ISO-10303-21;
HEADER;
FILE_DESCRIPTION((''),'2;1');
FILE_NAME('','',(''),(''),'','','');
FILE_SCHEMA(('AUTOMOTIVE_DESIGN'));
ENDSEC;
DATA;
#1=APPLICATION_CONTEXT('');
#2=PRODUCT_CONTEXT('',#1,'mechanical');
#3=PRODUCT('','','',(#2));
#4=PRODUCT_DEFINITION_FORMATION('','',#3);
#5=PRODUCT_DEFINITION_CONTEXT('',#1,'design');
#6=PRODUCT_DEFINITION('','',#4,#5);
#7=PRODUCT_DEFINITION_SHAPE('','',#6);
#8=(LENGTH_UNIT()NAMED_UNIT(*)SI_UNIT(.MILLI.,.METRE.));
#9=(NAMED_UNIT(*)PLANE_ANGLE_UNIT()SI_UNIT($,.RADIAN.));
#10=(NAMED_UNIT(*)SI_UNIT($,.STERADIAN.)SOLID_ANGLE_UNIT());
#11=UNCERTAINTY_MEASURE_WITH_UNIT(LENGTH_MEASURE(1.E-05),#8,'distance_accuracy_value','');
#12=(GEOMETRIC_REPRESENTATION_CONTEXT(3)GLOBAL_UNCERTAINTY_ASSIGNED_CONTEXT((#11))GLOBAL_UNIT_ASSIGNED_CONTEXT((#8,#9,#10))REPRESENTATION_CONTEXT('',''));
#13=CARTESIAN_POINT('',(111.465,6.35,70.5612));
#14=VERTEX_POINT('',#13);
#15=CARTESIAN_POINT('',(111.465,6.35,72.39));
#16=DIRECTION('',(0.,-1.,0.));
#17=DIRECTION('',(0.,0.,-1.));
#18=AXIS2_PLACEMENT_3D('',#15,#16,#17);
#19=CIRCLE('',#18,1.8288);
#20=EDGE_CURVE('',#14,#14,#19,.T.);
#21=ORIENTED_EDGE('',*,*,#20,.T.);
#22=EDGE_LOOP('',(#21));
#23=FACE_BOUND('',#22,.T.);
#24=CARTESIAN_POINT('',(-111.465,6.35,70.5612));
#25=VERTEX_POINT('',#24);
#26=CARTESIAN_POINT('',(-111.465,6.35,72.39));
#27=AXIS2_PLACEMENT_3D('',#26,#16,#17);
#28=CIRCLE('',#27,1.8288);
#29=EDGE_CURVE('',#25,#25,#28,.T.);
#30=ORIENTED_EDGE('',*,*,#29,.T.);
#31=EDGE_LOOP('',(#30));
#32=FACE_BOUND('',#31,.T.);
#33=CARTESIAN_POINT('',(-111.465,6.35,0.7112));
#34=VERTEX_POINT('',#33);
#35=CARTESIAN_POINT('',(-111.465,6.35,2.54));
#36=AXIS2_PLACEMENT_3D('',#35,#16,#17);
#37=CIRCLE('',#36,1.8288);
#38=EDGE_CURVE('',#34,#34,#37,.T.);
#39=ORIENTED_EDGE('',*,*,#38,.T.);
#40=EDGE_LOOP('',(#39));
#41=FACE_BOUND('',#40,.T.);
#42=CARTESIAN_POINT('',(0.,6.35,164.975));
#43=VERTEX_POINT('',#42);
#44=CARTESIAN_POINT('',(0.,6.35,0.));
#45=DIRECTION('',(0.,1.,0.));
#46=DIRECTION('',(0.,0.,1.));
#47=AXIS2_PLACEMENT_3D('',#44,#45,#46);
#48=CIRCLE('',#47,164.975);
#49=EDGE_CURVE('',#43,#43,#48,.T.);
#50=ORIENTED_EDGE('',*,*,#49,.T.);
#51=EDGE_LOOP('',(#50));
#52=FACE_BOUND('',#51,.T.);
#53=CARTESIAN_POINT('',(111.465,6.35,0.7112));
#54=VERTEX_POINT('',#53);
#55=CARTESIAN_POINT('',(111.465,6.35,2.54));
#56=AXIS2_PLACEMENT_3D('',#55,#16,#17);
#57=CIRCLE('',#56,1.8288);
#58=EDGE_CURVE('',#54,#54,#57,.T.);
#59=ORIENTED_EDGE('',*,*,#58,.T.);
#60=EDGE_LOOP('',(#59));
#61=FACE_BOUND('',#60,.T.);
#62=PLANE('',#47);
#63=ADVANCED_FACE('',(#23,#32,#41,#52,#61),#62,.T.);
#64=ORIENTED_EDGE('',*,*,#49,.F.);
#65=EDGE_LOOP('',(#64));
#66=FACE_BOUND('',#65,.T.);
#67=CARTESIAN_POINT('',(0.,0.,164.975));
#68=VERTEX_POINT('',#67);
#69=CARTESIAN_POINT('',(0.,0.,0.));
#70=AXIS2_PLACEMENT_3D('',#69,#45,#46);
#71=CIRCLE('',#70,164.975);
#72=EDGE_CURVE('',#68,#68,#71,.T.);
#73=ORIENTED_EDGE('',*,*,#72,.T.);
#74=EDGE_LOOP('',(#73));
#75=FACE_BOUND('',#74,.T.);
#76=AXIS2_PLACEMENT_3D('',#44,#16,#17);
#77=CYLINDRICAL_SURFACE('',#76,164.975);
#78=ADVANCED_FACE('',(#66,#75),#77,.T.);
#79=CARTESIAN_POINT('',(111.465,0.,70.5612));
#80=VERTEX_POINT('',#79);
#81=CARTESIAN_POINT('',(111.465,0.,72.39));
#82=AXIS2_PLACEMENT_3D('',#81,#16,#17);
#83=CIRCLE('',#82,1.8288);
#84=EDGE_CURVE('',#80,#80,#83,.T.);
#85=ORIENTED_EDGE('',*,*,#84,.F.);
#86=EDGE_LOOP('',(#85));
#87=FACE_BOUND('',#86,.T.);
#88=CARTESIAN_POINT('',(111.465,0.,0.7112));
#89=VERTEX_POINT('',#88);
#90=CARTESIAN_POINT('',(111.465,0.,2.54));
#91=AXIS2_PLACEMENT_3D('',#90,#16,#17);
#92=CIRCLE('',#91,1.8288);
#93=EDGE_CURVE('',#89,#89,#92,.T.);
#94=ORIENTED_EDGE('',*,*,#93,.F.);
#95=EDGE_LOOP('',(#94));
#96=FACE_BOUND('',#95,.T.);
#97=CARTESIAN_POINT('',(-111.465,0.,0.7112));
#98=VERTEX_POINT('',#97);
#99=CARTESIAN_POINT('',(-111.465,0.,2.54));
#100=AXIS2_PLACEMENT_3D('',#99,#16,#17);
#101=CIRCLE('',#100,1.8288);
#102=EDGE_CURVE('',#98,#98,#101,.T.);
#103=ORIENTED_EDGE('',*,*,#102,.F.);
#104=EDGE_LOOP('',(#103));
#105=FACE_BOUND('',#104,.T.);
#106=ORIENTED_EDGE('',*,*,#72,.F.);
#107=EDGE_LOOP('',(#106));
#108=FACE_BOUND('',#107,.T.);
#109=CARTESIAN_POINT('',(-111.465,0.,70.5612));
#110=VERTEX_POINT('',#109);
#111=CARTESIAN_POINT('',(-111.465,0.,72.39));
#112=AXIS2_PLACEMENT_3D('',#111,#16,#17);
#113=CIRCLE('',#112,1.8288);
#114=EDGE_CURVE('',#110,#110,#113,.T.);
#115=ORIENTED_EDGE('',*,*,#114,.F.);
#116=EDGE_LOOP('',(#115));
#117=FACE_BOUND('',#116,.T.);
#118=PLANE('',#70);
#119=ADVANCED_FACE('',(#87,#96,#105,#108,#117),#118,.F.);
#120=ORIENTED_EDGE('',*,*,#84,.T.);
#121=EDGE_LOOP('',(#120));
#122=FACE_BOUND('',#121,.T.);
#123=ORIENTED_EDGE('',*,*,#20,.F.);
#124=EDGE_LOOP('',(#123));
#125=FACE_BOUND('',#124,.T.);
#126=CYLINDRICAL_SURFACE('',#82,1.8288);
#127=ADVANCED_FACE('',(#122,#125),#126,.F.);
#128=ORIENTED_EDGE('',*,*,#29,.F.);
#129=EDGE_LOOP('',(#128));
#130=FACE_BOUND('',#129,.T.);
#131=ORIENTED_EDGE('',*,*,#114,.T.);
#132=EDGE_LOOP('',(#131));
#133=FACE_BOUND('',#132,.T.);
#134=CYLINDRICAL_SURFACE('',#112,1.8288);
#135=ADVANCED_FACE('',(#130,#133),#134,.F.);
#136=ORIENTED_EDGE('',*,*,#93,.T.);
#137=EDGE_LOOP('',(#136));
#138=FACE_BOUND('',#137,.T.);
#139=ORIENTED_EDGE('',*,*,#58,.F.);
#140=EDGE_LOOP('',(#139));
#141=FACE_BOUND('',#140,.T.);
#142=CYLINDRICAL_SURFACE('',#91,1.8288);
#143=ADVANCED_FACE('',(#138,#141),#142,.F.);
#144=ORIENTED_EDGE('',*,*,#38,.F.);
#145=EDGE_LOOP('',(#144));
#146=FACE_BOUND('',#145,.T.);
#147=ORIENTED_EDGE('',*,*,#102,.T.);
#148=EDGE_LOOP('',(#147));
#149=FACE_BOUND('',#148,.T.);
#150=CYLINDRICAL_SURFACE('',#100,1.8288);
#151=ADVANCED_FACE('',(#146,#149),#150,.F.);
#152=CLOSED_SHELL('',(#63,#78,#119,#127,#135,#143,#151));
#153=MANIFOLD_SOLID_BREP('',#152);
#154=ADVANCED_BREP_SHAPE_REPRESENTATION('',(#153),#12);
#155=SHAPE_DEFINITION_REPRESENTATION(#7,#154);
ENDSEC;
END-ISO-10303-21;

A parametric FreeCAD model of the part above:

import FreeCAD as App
import Part
import Sketcher

V = App.Vector
Q = App.Units.Quantity

doc = App.newDocument("Part")
body = doc.addObject("PartDesign::Body", "Body")

# Sketch on XZ plane
sketch1 = body.newObject("Sketcher::SketchObject", "Sketch")
sketch1.AttachmentSupport = (doc.getObject("XZ_Plane"), [""])
sketch1.MapMode = "FlatFace"
sketch1.addGeometry(Part.Circle(V(0, 0, 0), V(0, 0, 1), 164.975), False)
sketch1.addConstraint(Sketcher.Constraint("Coincident", 0, 3, -1, 1))
sketch1.addConstraint(Sketcher.Constraint("Diameter", 0, 329.95))
pad1 = body.newObject("PartDesign::Pad", "Pad")
pad1.Profile = sketch1
pad1.Length = Q("0.25 in")
pad1.Reversed = True

# Sketch on XZ plane
sketch2 = body.newObject("Sketcher::SketchObject", "Sketch001")
sketch2.AttachmentSupport = (doc.getObject("XZ_Plane"), [""])
sketch2.MapMode = "FlatFace"
sketch2.addGeometry(Part.Circle(V(111.465, 2.54, 0), V(0, 0, 1), 1.8288), False)
sketch2.addGeometry(Part.Circle(V(111.465, 72.39, 0), V(0, 0, 1), 1.8288), False)
sketch2.addGeometry(Part.Circle(V(-111.465, 72.39, 0), V(0, 0, 1), 1.8288), False)
sketch2.addGeometry(Part.Circle(V(-111.465, 2.54, 0), V(0, 0, 1), 1.8288), False)
sketch2.addConstraint(Sketcher.Constraint("Equal", 0, 1))
sketch2.addConstraint(Sketcher.Constraint("Equal", 1, 2))
sketch2.addConstraint(Sketcher.Constraint("Equal", 2, 3))
sketch2.addConstraint(Sketcher.Constraint("Symmetric", 1, 3, 2, 3, -2))
sketch2.addConstraint(Sketcher.Constraint("Symmetric", 0, 3, 3, 3, -2))
sketch2.addConstraint(Sketcher.Constraint("Vertical", 0, 3, 1, 3))
sketch2.addConstraint(Sketcher.Constraint("Diameter", 0, Q("0.144 in")))
sketch2.addConstraint(Sketcher.Constraint("DistanceY", -1, 1, 0, 3, Q("0.1 in")))
sketch2.addConstraint(Sketcher.Constraint("DistanceY", -1, 1, 1, 3, Q("2.85 in")))
sketch2.addConstraint(Sketcher.Constraint("DistanceX", -1, 1, 0, 3, 111.465))
doc.recompute()
hole = body.newObject("PartDesign::Hole", "Hole")
hole.Profile = sketch2
hole.ThreadType = "None"
hole.Diameter = Q("0.144 in")
hole.DepthType = "ThroughAll"

doc.recompute()
